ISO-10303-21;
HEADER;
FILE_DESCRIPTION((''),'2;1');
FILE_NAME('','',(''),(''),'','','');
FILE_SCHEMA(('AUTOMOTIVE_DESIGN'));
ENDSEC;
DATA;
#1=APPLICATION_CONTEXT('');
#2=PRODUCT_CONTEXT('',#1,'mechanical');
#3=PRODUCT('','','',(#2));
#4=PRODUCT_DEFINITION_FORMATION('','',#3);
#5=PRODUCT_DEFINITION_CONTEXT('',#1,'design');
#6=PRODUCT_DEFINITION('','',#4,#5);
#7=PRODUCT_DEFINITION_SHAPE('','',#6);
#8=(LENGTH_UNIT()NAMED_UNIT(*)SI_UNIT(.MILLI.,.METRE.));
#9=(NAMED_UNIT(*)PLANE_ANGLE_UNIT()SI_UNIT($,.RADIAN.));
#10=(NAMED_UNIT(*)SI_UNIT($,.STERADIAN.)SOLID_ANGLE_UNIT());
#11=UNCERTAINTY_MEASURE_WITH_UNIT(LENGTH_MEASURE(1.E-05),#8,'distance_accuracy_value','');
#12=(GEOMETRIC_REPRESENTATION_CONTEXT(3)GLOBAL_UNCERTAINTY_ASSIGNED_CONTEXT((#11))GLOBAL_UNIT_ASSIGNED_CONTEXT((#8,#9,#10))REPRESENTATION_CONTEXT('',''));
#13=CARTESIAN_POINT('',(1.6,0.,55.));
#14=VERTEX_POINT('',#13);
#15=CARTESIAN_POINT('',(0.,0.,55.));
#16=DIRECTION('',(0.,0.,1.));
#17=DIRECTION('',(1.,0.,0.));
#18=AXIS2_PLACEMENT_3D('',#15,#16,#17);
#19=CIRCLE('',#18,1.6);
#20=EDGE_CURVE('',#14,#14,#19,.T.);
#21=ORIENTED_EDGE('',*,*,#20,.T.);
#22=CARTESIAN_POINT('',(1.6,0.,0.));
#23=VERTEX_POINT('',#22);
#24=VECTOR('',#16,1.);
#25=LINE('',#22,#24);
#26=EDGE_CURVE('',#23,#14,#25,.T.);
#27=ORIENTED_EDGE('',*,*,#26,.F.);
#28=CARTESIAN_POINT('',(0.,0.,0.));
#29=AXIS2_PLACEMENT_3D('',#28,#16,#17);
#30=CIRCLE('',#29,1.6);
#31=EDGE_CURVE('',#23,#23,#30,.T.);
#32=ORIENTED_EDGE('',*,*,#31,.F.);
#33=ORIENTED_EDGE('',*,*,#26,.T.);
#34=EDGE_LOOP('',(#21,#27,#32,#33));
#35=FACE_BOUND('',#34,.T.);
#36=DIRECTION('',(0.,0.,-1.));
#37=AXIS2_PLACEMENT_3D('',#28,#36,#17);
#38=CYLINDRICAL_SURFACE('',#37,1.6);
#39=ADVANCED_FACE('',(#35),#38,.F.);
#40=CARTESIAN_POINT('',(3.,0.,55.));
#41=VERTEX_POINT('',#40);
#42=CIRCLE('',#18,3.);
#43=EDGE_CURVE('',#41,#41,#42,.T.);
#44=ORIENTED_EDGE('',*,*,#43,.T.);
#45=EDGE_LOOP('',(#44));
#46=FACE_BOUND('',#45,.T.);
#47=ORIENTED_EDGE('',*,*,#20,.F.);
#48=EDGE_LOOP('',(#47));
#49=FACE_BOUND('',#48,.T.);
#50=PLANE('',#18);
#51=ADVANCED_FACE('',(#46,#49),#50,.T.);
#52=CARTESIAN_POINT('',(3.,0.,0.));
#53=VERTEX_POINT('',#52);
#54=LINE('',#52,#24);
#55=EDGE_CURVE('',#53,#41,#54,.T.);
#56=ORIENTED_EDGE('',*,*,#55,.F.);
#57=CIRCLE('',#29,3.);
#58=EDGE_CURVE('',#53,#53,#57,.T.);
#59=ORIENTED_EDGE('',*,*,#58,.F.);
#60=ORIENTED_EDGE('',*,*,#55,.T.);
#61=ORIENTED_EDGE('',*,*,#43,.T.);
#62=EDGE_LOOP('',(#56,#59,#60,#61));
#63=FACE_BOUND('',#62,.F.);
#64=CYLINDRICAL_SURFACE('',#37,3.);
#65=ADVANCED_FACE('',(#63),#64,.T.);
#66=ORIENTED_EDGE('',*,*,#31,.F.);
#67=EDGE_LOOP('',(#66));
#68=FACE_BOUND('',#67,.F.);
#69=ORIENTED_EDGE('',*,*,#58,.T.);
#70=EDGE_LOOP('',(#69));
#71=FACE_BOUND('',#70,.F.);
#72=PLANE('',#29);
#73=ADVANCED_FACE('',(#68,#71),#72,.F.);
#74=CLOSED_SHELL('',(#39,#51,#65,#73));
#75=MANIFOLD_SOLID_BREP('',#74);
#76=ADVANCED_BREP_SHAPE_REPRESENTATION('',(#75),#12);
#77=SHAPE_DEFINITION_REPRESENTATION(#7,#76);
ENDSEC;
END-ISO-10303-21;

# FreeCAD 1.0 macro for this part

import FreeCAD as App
import Part
import Sketcher
from FreeCAD import Vector
Q = App.Units.Quantity

doc = App.newDocument("Part")
params = doc.addObject("Spreadsheet::Sheet", "Params")
for row, (alias, value) in enumerate([
    ("sketch1_diameter", "6 mm"),
    ("sketch1_diameter2", "3.2 mm"),
    ("pad1_length", "55 mm"),
], start=1):
    params.set(f"A{row}", alias)
    params.set(f"B{row}", "=" + value)
    params.setAlias(f"B{row}", alias)

body = doc.addObject("PartDesign::Body", "Body")

sketch1 = doc.addObject("Sketcher::SketchObject", "Sketch")
body.addObject(sketch1)
sketch1.AttachmentSupport = (doc.XY_Plane, [""])
sketch1.MapMode = "FlatFace"
sketch1.addGeometry(Part.Circle(Vector(0, 0, 0), Vector(0, 0, 1), 3), False)
sketch1.addGeometry(Part.Circle(Vector(0, 0, 0), Vector(0, 0, 1), 1.6), False)
sketch1.addConstraint(Sketcher.Constraint("Coincident", 0, 3, -1, 1))
sketch1.addConstraint(Sketcher.Constraint("Coincident", 1, 3, -1, 1))
sketch1.addConstraint(Sketcher.Constraint("Diameter", 0, Q("6 mm")))
sketch1.addConstraint(Sketcher.Constraint("Diameter", 1, Q("3.2 mm")))
sketch1.setExpression("Constraints[2]", "Params.sketch1_diameter")
sketch1.setExpression("Constraints[3]", "Params.sketch1_diameter2")
pad1 = doc.addObject("PartDesign::Pad", "Pad")
body.addObject(pad1)
pad1.Profile = sketch1
pad1.setExpression("Length", "Params.pad1_length")

doc.recompute()
